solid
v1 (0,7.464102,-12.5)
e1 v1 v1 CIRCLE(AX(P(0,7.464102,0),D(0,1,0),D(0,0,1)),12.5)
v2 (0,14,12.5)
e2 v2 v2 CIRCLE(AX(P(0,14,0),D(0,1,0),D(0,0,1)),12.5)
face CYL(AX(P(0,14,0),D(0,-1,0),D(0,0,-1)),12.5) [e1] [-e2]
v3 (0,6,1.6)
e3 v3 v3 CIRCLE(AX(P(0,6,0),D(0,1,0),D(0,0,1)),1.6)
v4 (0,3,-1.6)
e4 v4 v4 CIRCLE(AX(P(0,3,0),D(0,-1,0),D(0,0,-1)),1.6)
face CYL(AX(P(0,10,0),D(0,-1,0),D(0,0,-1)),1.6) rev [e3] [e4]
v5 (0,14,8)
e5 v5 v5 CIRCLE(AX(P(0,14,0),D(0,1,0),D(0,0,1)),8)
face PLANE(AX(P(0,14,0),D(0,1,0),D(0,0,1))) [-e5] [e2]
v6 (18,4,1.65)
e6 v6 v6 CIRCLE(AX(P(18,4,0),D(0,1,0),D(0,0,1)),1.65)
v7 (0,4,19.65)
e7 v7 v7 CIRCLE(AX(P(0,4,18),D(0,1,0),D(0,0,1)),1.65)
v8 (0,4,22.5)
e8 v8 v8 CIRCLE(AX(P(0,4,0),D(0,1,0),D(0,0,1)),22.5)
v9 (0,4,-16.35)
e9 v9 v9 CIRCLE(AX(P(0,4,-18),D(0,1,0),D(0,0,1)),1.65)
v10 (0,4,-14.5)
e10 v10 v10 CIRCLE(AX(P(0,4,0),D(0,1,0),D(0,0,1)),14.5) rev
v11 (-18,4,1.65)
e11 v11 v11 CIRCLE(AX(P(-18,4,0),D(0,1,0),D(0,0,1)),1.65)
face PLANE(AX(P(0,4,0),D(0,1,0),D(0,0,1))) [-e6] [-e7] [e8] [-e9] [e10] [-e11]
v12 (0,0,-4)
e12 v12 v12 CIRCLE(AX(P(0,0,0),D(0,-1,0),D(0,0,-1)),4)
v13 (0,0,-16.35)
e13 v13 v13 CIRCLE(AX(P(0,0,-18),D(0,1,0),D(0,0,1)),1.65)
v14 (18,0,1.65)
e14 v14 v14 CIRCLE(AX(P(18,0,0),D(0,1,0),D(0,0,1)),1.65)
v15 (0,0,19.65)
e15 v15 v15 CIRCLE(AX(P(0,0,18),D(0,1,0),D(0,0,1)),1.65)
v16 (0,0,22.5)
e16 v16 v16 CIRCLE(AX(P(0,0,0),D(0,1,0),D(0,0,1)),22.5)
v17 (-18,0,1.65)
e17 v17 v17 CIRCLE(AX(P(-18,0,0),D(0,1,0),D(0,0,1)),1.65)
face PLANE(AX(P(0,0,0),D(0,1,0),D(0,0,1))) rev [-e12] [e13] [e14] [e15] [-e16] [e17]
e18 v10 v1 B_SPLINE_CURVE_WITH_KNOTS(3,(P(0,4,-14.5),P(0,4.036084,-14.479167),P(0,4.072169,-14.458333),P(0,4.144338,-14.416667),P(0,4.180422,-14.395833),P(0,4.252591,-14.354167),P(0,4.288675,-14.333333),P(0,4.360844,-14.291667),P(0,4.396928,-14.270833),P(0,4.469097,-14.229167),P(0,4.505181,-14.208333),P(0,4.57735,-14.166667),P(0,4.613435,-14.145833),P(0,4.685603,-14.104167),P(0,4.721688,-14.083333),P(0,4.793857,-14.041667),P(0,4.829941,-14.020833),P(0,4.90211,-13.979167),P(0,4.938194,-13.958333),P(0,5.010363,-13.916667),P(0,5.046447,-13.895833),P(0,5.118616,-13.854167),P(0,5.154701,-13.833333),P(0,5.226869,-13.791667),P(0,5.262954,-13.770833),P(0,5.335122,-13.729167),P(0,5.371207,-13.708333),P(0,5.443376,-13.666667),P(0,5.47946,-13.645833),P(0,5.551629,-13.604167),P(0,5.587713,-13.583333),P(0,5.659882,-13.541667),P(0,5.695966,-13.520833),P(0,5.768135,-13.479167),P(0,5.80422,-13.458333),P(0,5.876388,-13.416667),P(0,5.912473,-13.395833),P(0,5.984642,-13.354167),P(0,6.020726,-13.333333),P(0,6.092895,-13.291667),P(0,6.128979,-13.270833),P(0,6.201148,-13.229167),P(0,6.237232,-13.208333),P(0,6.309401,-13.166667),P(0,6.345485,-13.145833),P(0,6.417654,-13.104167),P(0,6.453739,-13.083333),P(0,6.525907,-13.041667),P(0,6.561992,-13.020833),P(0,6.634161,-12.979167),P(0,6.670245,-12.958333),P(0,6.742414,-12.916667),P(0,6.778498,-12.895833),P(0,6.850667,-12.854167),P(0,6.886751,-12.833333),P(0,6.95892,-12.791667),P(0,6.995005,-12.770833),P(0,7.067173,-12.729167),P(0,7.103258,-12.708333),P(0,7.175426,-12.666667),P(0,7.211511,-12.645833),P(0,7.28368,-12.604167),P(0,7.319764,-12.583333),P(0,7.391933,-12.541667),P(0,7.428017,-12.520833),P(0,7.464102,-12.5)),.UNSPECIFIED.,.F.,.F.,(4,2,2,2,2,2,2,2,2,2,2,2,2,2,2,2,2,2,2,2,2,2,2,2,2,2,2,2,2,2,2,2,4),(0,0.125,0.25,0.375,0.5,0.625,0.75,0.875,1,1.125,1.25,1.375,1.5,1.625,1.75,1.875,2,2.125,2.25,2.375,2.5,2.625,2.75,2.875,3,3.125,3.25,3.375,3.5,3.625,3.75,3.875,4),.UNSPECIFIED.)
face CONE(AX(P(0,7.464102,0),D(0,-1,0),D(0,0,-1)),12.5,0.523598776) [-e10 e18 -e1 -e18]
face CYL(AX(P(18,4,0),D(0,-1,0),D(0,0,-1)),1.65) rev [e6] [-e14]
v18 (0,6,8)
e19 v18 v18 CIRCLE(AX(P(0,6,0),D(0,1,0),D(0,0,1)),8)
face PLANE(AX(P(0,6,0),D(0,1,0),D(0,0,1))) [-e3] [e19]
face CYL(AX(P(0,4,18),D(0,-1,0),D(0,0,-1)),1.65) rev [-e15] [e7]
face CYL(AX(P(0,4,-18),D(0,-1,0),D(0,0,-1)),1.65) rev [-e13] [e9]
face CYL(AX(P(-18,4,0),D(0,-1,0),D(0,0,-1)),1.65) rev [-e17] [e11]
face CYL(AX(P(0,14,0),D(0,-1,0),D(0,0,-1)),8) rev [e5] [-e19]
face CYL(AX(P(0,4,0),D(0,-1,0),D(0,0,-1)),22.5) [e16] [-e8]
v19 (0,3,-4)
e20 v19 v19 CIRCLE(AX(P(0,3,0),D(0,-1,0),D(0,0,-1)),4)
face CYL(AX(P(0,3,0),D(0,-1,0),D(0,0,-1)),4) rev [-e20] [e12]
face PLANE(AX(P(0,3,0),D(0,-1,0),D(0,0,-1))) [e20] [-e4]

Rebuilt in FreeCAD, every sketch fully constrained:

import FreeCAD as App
import Part
import Sketcher
Q = App.Units.Quantity


def edges_at(feature, points):
    """Names of the edges that pass closest to the given points."""
    edges = feature.Shape.Edges
    near = lambda p: min(range(len(edges)), key=lambda i: edges[i].distToShape(Part.Vertex(*p))[0])
    return sorted({f"Edge{near(p) + 1}" for p in points})

doc = App.newDocument("Part")
body = doc.addObject("PartDesign::Body", "Body")

# Sketch on XZ plane
sketch1 = body.newObject("Sketcher::SketchObject", "Sketch")
sketch1.AttachmentSupport = (doc.getObject("XZ_Plane"), [""])
sketch1.MapMode = "FlatFace"
sketch1.addGeometry([
    Part.Circle(App.Vector(0, 0, 0), App.Vector(0, 0, 1), 22.5),  # 0
    Part.Circle(App.Vector(0, -18, 0), App.Vector(0, 0, 1), 1.6),  # 1
    Part.Circle(App.Vector(-18, 0, 0), App.Vector(0, 0, 1), 1.6),  # 2
    Part.Circle(App.Vector(18, 0, 0), App.Vector(0, 0, 1), 1.6),  # 3
    Part.Circle(App.Vector(0, 18, 0), App.Vector(0, 0, 1), 1.6),  # 4
], False)
sketch1.addConstraint([
    Sketcher.Constraint("Coincident", 0, 3, -1, 1),
    Sketcher.Constraint("Equal", 1, 2),
    Sketcher.Constraint("Equal", 2, 3),
    Sketcher.Constraint("Equal", 3, 4),
    Sketcher.Constraint("Symmetric", 2, 3, 3, 3, -1, 1),
    Sketcher.Constraint("Symmetric", 1, 3, 4, 3, -1, 1),
    Sketcher.Constraint("PointOnObject", 1, 3, -2),
    Sketcher.Constraint("PointOnObject", 2, 3, -1),
    Sketcher.Constraint("Diameter", 0, Q("45 mm")),
    Sketcher.Constraint("Diameter", 1, Q("3.3 mm")),
    Sketcher.Constraint("DistanceY", 1, 3, -1, 1, Q("18 mm")),
    Sketcher.Constraint("DistanceX", 2, 3, -1, 1, Q("18 mm")),
])
pad1 = body.newObject("PartDesign::Pad", "Pad")
pad1.Profile = sketch1
pad1.Length = 4
pad1.Reversed = True

# Sketch on XZ plane
sketch2 = body.newObject("Sketcher::SketchObject", "Sketch001")
sketch2.AttachmentSupport = (doc.getObject("XZ_Plane"), [""])
sketch2.MapMode = "FlatFace"
sketch2.AttachmentOffset = App.Placement(App.Vector(0, 0, -4), App.Rotation())
sketch2.addGeometry([
    Part.Circle(App.Vector(0, 0, 0), App.Vector(0, 0, 1), 12),
    Part.Circle(App.Vector(0, 0, 0), App.Vector(0, 0, 1), 8),
], False)
sketch2.addConstraint([
    Sketcher.Constraint("Coincident", 0, 3, -1, 1),
    Sketcher.Constraint("Coincident", 1, 3, -1, 1),
    Sketcher.Constraint("Diameter", 0, Q("25 mm")),
    Sketcher.Constraint("Diameter", 1, Q("16 mm")),
])
pad2 = body.newObject("PartDesign::Pad", "Pad001")
pad2.Profile = sketch2
pad2.Length = 10
pad2.Reversed = True

# Sketch on XZ plane
sketch3 = body.newObject("Sketcher::SketchObject", "Sketch002")
sketch3.AttachmentSupport = (doc.getObject("XZ_Plane"), [""])
sketch3.MapMode = "FlatFace"
sketch3.addGeometry(Part.Circle(App.Vector(0, 0, 0), App.Vector(0, 0, 1), 4), False)
sketch3.addConstraint([
    Sketcher.Constraint("Coincident", 0, 3, -1, 1),
    Sketcher.Constraint("Diameter", 0, Q("8 mm")),
])
pocket1 = body.newObject("PartDesign::Pocket", "Pocket")
pocket1.Profile = sketch3
pocket1.Length = 3

# Sketch on XZ plane
sketch4 = body.newObject("Sketcher::SketchObject", "Sketch003")
sketch4.AttachmentSupport = (doc.getObject("XZ_Plane"), [""])
sketch4.MapMode = "FlatFace"
sketch4.AttachmentOffset = App.Placement(App.Vector(0, 0, -4), App.Rotation())
sketch4.addGeometry(Part.Circle(App.Vector(0, 0, 0), App.Vector(0, 0, 1), 8), False)
sketch4.addConstraint([
    Sketcher.Constraint("Coincident", 0, 3, -1, 1),
    Sketcher.Constraint("Diameter", 0, Q("16 mm")),
])
pad3 = body.newObject("PartDesign::Pad", "Pad002")
pad3.Profile = sketch4
pad3.Length = 2
pad3.Reversed = True

# Sketch on XZ plane
sketch5 = body.newObject("Sketcher::SketchObject", "Sketch004")
sketch5.AttachmentSupport = (doc.getObject("XZ_Plane"), [""])
sketch5.MapMode = "FlatFace"
sketch5.addGeometry(Part.Circle(App.Vector(0, 0, 0), App.Vector(0, 0, 1), 1.6), False)
sketch5.addConstraint([
    Sketcher.Constraint("Coincident", 0, 3, -1, 1),
    Sketcher.Constraint("Diameter", 0, Q("3.2 mm")),
])
pocket2 = body.newObject("PartDesign::Pocket", "Pocket001")
pocket2.Profile = sketch5
pocket2.Length = 10
doc.recompute()

chamfer = body.newObject("PartDesign::Chamfer", "Chamfer")
chamfer.Base = (pocket2, edges_at(pocket2, [(0, 4, -12.5)]))
chamfer.ChamferType = "Two distances"
chamfer.Size = 2
chamfer.Size2 = 3.464102

doc.recompute()
